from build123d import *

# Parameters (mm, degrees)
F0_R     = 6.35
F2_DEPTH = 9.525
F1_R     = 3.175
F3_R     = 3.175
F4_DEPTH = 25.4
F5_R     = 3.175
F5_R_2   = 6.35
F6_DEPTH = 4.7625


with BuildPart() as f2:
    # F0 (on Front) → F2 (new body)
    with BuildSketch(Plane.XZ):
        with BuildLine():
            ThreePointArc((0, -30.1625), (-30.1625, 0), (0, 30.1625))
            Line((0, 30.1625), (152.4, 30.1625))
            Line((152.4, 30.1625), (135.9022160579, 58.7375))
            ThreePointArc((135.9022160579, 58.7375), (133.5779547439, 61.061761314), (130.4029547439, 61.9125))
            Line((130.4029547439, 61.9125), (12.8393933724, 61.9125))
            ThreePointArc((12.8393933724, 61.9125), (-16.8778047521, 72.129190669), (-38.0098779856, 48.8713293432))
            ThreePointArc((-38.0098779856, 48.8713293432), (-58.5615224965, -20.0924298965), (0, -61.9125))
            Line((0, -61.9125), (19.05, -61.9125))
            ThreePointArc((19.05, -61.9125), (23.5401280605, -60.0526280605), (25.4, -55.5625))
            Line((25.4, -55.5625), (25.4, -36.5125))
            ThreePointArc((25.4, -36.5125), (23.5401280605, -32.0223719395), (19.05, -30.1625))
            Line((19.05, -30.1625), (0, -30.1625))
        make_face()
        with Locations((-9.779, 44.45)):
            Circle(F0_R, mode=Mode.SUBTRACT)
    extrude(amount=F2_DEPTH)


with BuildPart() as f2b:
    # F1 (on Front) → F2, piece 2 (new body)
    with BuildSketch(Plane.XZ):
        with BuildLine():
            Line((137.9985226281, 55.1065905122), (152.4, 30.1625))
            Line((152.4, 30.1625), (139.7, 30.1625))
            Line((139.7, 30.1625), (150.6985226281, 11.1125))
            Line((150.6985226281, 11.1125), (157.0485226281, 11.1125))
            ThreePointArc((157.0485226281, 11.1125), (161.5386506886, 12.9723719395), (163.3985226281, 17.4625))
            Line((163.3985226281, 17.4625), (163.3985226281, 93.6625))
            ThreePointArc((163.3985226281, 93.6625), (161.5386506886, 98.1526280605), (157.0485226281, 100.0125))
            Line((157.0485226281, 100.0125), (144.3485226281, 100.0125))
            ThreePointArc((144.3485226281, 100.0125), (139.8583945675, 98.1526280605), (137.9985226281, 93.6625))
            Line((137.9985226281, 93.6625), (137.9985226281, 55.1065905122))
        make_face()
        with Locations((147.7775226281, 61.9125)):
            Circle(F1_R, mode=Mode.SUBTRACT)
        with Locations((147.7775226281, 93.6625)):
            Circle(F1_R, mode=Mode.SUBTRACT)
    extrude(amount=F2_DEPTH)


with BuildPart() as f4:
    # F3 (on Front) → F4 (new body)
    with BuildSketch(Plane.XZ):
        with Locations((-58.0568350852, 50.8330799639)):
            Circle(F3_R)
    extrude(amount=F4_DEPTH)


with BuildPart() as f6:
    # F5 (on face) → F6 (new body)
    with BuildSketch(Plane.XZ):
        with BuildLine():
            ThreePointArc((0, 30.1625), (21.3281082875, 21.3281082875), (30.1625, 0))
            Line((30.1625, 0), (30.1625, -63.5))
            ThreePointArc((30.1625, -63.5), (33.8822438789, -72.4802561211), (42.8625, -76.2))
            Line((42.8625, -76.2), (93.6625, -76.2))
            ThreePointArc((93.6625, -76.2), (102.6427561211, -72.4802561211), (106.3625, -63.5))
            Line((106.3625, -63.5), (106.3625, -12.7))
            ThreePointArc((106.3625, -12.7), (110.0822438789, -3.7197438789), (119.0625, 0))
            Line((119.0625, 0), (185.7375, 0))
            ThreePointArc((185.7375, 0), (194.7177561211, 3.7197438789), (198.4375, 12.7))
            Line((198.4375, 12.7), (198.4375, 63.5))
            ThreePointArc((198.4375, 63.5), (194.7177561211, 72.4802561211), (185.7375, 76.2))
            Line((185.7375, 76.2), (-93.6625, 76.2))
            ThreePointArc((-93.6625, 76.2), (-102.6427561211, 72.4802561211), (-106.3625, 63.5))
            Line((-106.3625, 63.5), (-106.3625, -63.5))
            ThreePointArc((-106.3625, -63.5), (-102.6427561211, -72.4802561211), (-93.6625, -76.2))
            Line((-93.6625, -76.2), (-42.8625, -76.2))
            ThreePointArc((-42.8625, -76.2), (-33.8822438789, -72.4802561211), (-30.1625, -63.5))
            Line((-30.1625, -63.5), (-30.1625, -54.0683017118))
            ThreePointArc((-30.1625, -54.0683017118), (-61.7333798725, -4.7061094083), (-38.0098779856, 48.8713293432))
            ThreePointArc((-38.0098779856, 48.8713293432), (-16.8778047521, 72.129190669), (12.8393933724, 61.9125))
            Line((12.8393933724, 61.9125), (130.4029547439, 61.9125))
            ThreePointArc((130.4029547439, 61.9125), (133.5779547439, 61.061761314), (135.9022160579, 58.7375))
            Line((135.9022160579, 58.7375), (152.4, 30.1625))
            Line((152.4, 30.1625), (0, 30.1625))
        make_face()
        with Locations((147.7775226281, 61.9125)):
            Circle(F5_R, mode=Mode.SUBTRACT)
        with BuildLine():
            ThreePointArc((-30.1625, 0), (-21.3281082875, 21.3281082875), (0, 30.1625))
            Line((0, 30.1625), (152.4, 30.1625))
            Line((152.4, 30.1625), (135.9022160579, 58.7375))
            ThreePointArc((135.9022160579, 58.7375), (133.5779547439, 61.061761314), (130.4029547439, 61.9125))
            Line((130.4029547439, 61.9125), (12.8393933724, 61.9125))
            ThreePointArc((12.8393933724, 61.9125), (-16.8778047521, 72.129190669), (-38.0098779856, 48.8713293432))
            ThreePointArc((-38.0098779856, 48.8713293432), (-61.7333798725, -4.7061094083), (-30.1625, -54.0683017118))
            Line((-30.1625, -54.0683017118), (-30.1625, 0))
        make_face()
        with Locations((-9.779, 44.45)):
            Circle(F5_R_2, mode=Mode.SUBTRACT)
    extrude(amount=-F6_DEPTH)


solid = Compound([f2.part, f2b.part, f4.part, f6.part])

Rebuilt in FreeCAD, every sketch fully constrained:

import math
import FreeCAD as App
import Part
import Sketcher
Q = App.Units.Quantity

doc = App.newDocument("Part")
body = doc.addObject("PartDesign::Body", "Body")

# Sketch on XZ plane
sketch1 = body.newObject("Sketcher::SketchObject", "Sketch")
sketch1.AttachmentSupport = (doc.getObject("XZ_Plane"), [""])
sketch1.MapMode = "FlatFace"
sketch1.addGeometry([
    Part.ArcOfCircle(Part.Circle(App.Vector(0, 0, 0), App.Vector(0, 0, 1), 30), math.radians(90), math.radians(270)),  # 0
    Part.LineSegment(App.Vector(0, 30, 0), App.Vector(152, 30, 0)),  # 1
    Part.LineSegment(App.Vector(152, 30, 0), App.Vector(136, 59, 0)),  # 2
    Part.ArcOfCircle(Part.Circle(App.Vector(130, 56, 0), App.Vector(0, 0, 1), 6), math.radians(30), math.radians(90)),  # 3
    Part.LineSegment(App.Vector(130, 62, 0), App.Vector(13, 62, 0)),  # 4
    Part.ArcOfCircle(Part.Circle(App.Vector(-10, 44, 0), App.Vector(0, 0, 1), 29), math.radians(38), math.radians(171)),  # 5
    Part.ArcOfCircle(Part.Circle(App.Vector(0, 0, 0), App.Vector(0, 0, 1), 62), math.radians(128), math.radians(270)),  # 6
    Part.LineSegment(App.Vector(0, -62, 0), App.Vector(19, -62, 0)),  # 7
    Part.ArcOfCircle(Part.Circle(App.Vector(19, -56, 0), App.Vector(0, 0, 1), 6), math.radians(-90), math.radians(0)),  # 8
    Part.LineSegment(App.Vector(25, -56, 0), App.Vector(25, -37, 0)),  # 9
    Part.ArcOfCircle(Part.Circle(App.Vector(19, -37, 0), App.Vector(0, 0, 1), 6), math.radians(0), math.radians(90)),  # 10
    Part.LineSegment(App.Vector(19, -30, 0), App.Vector(0, -30, 0)),  # 11
    Part.Circle(App.Vector(-10, 44, 0), App.Vector(0, 0, 1), 6),  # 12
], False)
sketch1.addConstraint([
    Sketcher.Constraint("Tangent", 0, 1, 1, 1),
    Sketcher.Constraint("Coincident", 1, 2, 2, 1),
    Sketcher.Constraint("Tangent", 2, 2, 3, 1),
    Sketcher.Constraint("Tangent", 3, 2, 4, 1),
    Sketcher.Constraint("Coincident", 4, 2, 5, 1),
    Sketcher.Constraint("Coincident", 5, 2, 6, 1),
    Sketcher.Constraint("Tangent", 6, 2, 7, 1),
    Sketcher.Constraint("Tangent", 7, 2, 8, 1),
    Sketcher.Constraint("Tangent", 8, 2, 9, 1),
    Sketcher.Constraint("Tangent", 9, 2, 10, 1),
    Sketcher.Constraint("Tangent", 10, 2, 11, 1),
    Sketcher.Constraint("Tangent", 11, 2, 0, 2),
    Sketcher.Constraint("Horizontal", 1),
    Sketcher.Constraint("Horizontal", 4),
    Sketcher.Constraint("Horizontal", 7),
    Sketcher.Constraint("Vertical", 9),
    Sketcher.Constraint("Horizontal", 11),
    Sketcher.Constraint("Coincident", 0, 3, -1, 1),
    Sketcher.Constraint("Coincident", 6, 3, -1, 1),
    Sketcher.Constraint("Coincident", 12, 3, 5, 3),
    Sketcher.Constraint("Equal", 3, 8),
    Sketcher.Constraint("Equal", 8, 10),
    Sketcher.Constraint("Equal", 10, 12),
    Sketcher.Constraint("Equal", 11, 9),
    Sketcher.Constraint("Diameter", 12, Q("0.5 in")),
    Sketcher.Constraint("DistanceX", 1, 1, 1, 2, Q("6 in")),
    Sketcher.Constraint("DistanceX", -1, 1, 8, 2, Q("1 in")),
    Sketcher.Constraint("Angle", 2, Q("120 deg")),
    Sketcher.Constraint("Radius", 0, Q("1.1875 in")),
    Sketcher.Constraint("Radius", 5, Q("1.125 in")),
    Sketcher.Constraint("DistanceY", 1, 2, 3, 3, Q("1 in")),
    Sketcher.Constraint("DistanceY", -1, 1, 5, 3, Q("1.75 in")),
    Sketcher.Constraint("DistanceX", 5, 3, -1, 1, Q("0.385 in")),
])
pad1 = body.newObject("PartDesign::Pad", "Pad")
pad1.Profile = sketch1
pad1.Length = Q("0.375 in")
body2 = doc.addObject("PartDesign::Body", "Body001")

# Sketch on XZ plane
sketch2 = body2.newObject("Sketcher::SketchObject", "Sketch001")
sketch2.AttachmentSupport = (doc.getObject("XZ_Plane001"), [""])
sketch2.MapMode = "FlatFace"
sketch2.addGeometry([
    Part.LineSegment(App.Vector(138, 55.1, 0), App.Vector(152.4, 30.2, 0)),  # 0
    Part.LineSegment(App.Vector(152.4, 30.2, 0), App.Vector(139.7, 30.2, 0)),  # 1
    Part.LineSegment(App.Vector(139.7, 30.2, 0), App.Vector(150.7, 11.1, 0)),  # 2
    Part.LineSegment(App.Vector(150.7, 11.1, 0), App.Vector(157, 11.1, 0)),  # 3
    Part.ArcOfCircle(Part.Circle(App.Vector(157, 17.5, 0), App.Vector(0, 0, 1), 6.3), math.radians(-90), math.radians(0)),  # 4
    Part.LineSegment(App.Vector(163.4, 17.5, 0), App.Vector(163.4, 93.7, 0)),  # 5
    Part.ArcOfCircle(Part.Circle(App.Vector(157, 93.7, 0), App.Vector(0, 0, 1), 6.3), math.radians(0), math.radians(90)),  # 6
    Part.LineSegment(App.Vector(157, 100, 0), App.Vector(144.3, 100, 0)),  # 7
    Part.ArcOfCircle(Part.Circle(App.Vector(144.3, 93.7, 0), App.Vector(0, 0, 1), 6.3), math.radians(90), math.radians(180)),  # 8
    Part.LineSegment(App.Vector(138, 93.7, 0), App.Vector(138, 55.1, 0)),  # 9
    Part.Circle(App.Vector(147.8, 61.9, 0), App.Vector(0, 0, 1), 3.2),  # 10
    Part.Circle(App.Vector(147.8, 93.7, 0), App.Vector(0, 0, 1), 3.2),  # 11
], False)
sketch2.addConstraint([
    Sketcher.Constraint("Coincident", 0, 2, 1, 1),
    Sketcher.Constraint("Coincident", 1, 2, 2, 1),
    Sketcher.Constraint("Coincident", 2, 2, 3, 1),
    Sketcher.Constraint("Tangent", 3, 2, 4, 1),
    Sketcher.Constraint("Tangent", 4, 2, 5, 1),
    Sketcher.Constraint("Tangent", 5, 2, 6, 1),
    Sketcher.Constraint("Tangent", 6, 2, 7, 1),
    Sketcher.Constraint("Tangent", 7, 2, 8, 1),
    Sketcher.Constraint("Tangent", 8, 2, 9, 1),
    Sketcher.Constraint("Coincident", 9, 2, 0, 1),
    Sketcher.Constraint("Horizontal", 1),
    Sketcher.Constraint("Horizontal", 3),
    Sketcher.Constraint("Vertical", 5),
    Sketcher.Constraint("Horizontal", 7),
    Sketcher.Constraint("Vertical", 9),
    Sketcher.Constraint("Equal", 4, 6),
    Sketcher.Constraint("Equal", 6, 8),
    Sketcher.Constraint("Equal", 10, 11),
    Sketcher.Constraint("Parallel", 0, 2),
    Sketcher.Constraint("Horizontal", 8, 3, 11, 3),
    Sketcher.Constraint("Vertical", 10, 3, 11, 3),
    Sketcher.Constraint("Equal", 1, 7),
    Sketcher.Constraint("Diameter", 10, Q("0.25 in")),
    Sketcher.Constraint("DistanceY", 5, 1, 5, 2, Q("3 in")),
    Sketcher.Constraint("Radius", 4, Q("0.25 in")),
    Sketcher.Constraint("DistanceX", 1, 2, 1, 1, Q("0.5 in")),
    Sketcher.Constraint("DistanceX", -1, 1, 0, 2, Q("6 in")),
    Sketcher.Constraint("Angle", 0, Q("-60 deg")),
    Sketcher.Constraint("DistanceY", 2, 2, 10, 3, Q("2 in")),
    Sketcher.Constraint("DistanceX", 3, 1, 3, 2, Q("0.25 in")),
    Sketcher.Constraint("DistanceY", 4, 3, 0, 2, Q("0.5 in")),
    Sketcher.Constraint("DistanceY", -1, 1, 4, 3, Q("0.6875 in")),
    Sketcher.Constraint("DistanceX", 8, 3, 10, 3, Q("0.135 in")),
])
pad2 = body2.newObject("PartDesign::Pad", "Pad001")
pad2.Profile = sketch2
pad2.Length = Q("0.375 in")
body3 = doc.addObject("PartDesign::Body", "Body002")

# Sketch on XZ plane
sketch3 = body3.newObject("Sketcher::SketchObject", "Sketch002")
sketch3.AttachmentSupport = (doc.getObject("XZ_Plane002"), [""])
sketch3.MapMode = "FlatFace"
sketch3.addGeometry(Part.Circle(App.Vector(-58.1, 50.8, 0), App.Vector(0, 0, 1), 3.2), False)
sketch3.addConstraint([
    Sketcher.Constraint("Diameter", 0, Q("0.25 in")),
    Sketcher.Constraint("DistanceY", -1, 1, 0, 3, 50.83308),
    Sketcher.Constraint("DistanceX", 0, 3, -1, 1, 58.056835),
])
pad3 = body3.newObject("PartDesign::Pad", "Pad002")
pad3.Profile = sketch3
pad3.Length = Q("1 in")
body4 = doc.addObject("PartDesign::Body", "Body003")

# Sketch on XZ plane
sketch4 = body4.newObject("Sketcher::SketchObject", "Sketch003")
sketch4.AttachmentSupport = (doc.getObject("XZ_Plane003"), [""])
sketch4.MapMode = "FlatFace"
sketch4.addGeometry([
    Part.ArcOfCircle(Part.Circle(App.Vector(0, 0, 0), App.Vector(0, 0, 1), 30.2), math.radians(0), math.radians(90)),  # 0
    Part.LineSegment(App.Vector(30.2, 0, 0), App.Vector(30.2, -63.5, 0)),  # 1
    Part.ArcOfCircle(Part.Circle(App.Vector(42.9, -63.5, 0), App.Vector(0, 0, 1), 12.7), math.radians(180), math.radians(270)),  # 2
    Part.LineSegment(App.Vector(42.9, -76.2, 0), App.Vector(93.7, -76.2, 0)),  # 3
    Part.ArcOfCircle(Part.Circle(App.Vector(93.7, -63.5, 0), App.Vector(0, 0, 1), 12.7), math.radians(-90), math.radians(0)),  # 4
    Part.LineSegment(App.Vector(106.4, -63.5, 0), App.Vector(106.4, -12.7, 0)),  # 5
    Part.ArcOfCircle(Part.Circle(App.Vector(119.1, -12.7, 0), App.Vector(0, 0, 1), 12.7), math.radians(90), math.radians(180)),  # 6
    Part.LineSegment(App.Vector(119.1, 0, 0), App.Vector(185.7, 0, 0)),  # 7
    Part.ArcOfCircle(Part.Circle(App.Vector(185.7, 12.7, 0), App.Vector(0, 0, 1), 12.7), math.radians(-90), math.radians(0)),  # 8
    Part.LineSegment(App.Vector(198.4, 12.7, 0), App.Vector(198.4, 63.5, 0)),  # 9
    Part.ArcOfCircle(Part.Circle(App.Vector(185.7, 63.5, 0), App.Vector(0, 0, 1), 12.7), math.radians(0), math.radians(90)),  # 10
    Part.LineSegment(App.Vector(185.7, 76.2, 0), App.Vector(-93.7, 76.2, 0)),  # 11
    Part.ArcOfCircle(Part.Circle(App.Vector(-93.7, 63.5, 0), App.Vector(0, 0, 1), 12.7), math.radians(90), math.radians(180)),  # 12
    Part.LineSegment(App.Vector(-106.4, 63.5, 0), App.Vector(-106.4, -63.5, 0)),  # 13
    Part.ArcOfCircle(Part.Circle(App.Vector(-93.7, -63.5, 0), App.Vector(0, 0, 1), 12.7), math.radians(180), math.radians(270)),  # 14
    Part.LineSegment(App.Vector(-93.7, -76.2, 0), App.Vector(-42.9, -76.2, 0)),  # 15
    Part.ArcOfCircle(Part.Circle(App.Vector(-42.9, -63.5, 0), App.Vector(0, 0, 1), 12.7), math.radians(-90), math.radians(0)),  # 16
    Part.LineSegment(App.Vector(-30.2, -63.5, 0), App.Vector(-30.2, 0, 0)),  # 17
    Part.ArcOfCircle(Part.Circle(App.Vector(0, 0, 0), App.Vector(0, 0, 1), 30.2), math.radians(90), math.radians(180)),  # 18
    Part.Circle(App.Vector(-9.8, 44.5, 0), App.Vector(0, 0, 1), 6.3),  # 19
    Part.Circle(App.Vector(147.8, 61.9, 0), App.Vector(0, 0, 1), 3.2),  # 20
], False)
sketch4.addConstraint([
    Sketcher.Constraint("Tangent", 0, 1, 1, 1),
    Sketcher.Constraint("Tangent", 1, 2, 2, 1),
    Sketcher.Constraint("Tangent", 2, 2, 3, 1),
    Sketcher.Constraint("Tangent", 3, 2, 4, 1),
    Sketcher.Constraint("Tangent", 4, 2, 5, 1),
    Sketcher.Constraint("Tangent", 5, 2, 6, 2),
    Sketcher.Constraint("Tangent", 6, 1, 7, 1),
    Sketcher.Constraint("Tangent", 7, 2, 8, 1),
    Sketcher.Constraint("Tangent", 8, 2, 9, 1),
    Sketcher.Constraint("Tangent", 9, 2, 10, 1),
    Sketcher.Constraint("Tangent", 10, 2, 11, 1),
    Sketcher.Constraint("Tangent", 11, 2, 12, 1),
    Sketcher.Constraint("Tangent", 12, 2, 13, 1),
    Sketcher.Constraint("Tangent", 13, 2, 14, 1),
    Sketcher.Constraint("Tangent", 14, 2, 15, 1),
    Sketcher.Constraint("Tangent", 15, 2, 16, 1),
    Sketcher.Constraint("Tangent", 16, 2, 17, 1),
    Sketcher.Constraint("Tangent", 17, 2, 18, 2),
    Sketcher.Constraint("Tangent", 18, 1, 0, 2),
    Sketcher.Constraint("Vertical", 1),
    Sketcher.Constraint("Horizontal", 3),
    Sketcher.Constraint("Vertical", 5),
    Sketcher.Constraint("Horizontal", 7),
    Sketcher.Constraint("Vertical", 9),
    Sketcher.Constraint("Horizontal", 11),
    Sketcher.Constraint("Vertical", 13),
    Sketcher.Constraint("Horizontal", 15),
    Sketcher.Constraint("Vertical", 17),
    Sketcher.Constraint("Coincident", 0, 3, -1, 1),
    Sketcher.Constraint("Equal", 2, 4),
    Sketcher.Constraint("Equal", 4, 6),
    Sketcher.Constraint("Equal", 6, 8),
    Sketcher.Constraint("Equal", 8, 10),
    Sketcher.Constraint("Equal", 10, 12),
    Sketcher.Constraint("Equal", 12, 14),
    Sketcher.Constraint("Equal", 14, 16),
    Sketcher.Constraint("Equal", 0, 18),
    Sketcher.Constraint("Symmetric", 4, 3, 12, 3, -1, 1),
    Sketcher.Constraint("PointOnObject", 6, 1, -1),
    Sketcher.Constraint("PointOnObject", 18, 1, -2),
    Sketcher.Constraint("Horizontal", 4, 3, 14, 3),
    Sketcher.Constraint("Equal", 15, 5),
    Sketcher.Constraint("Diameter", 19, Q("0.5 in")),
    Sketcher.Constraint("Radius", 2, Q("0.5 in")),
    Sketcher.Constraint("Diameter", 20, Q("0.25 in")),
    Sketcher.Constraint("DistanceX", 3, 1, 3, 2, Q("2 in")),
    Sketcher.Constraint("DistanceX", 11, 2, 11, 1, Q("11 in")),
    Sketcher.Constraint("Radius", 0, Q("1.1875 in")),
    Sketcher.Constraint("DistanceY", -1, 1, 19, 3, Q("1.75 in")),
    Sketcher.Constraint("DistanceX", 19, 3, -1, 1, Q("0.385 in")),
    Sketcher.Constraint("DistanceY", -1, 1, 20, 3, Q("2.4375 in")),
    Sketcher.Constraint("DistanceX", -1, 1, 20, 3, 147.777523),
])
pad4 = body4.newObject("PartDesign::Pad", "Pad003")
pad4.Profile = sketch4
pad4.Length = Q("0.1875 in")
pad4.Reversed = True

doc.recompute()
